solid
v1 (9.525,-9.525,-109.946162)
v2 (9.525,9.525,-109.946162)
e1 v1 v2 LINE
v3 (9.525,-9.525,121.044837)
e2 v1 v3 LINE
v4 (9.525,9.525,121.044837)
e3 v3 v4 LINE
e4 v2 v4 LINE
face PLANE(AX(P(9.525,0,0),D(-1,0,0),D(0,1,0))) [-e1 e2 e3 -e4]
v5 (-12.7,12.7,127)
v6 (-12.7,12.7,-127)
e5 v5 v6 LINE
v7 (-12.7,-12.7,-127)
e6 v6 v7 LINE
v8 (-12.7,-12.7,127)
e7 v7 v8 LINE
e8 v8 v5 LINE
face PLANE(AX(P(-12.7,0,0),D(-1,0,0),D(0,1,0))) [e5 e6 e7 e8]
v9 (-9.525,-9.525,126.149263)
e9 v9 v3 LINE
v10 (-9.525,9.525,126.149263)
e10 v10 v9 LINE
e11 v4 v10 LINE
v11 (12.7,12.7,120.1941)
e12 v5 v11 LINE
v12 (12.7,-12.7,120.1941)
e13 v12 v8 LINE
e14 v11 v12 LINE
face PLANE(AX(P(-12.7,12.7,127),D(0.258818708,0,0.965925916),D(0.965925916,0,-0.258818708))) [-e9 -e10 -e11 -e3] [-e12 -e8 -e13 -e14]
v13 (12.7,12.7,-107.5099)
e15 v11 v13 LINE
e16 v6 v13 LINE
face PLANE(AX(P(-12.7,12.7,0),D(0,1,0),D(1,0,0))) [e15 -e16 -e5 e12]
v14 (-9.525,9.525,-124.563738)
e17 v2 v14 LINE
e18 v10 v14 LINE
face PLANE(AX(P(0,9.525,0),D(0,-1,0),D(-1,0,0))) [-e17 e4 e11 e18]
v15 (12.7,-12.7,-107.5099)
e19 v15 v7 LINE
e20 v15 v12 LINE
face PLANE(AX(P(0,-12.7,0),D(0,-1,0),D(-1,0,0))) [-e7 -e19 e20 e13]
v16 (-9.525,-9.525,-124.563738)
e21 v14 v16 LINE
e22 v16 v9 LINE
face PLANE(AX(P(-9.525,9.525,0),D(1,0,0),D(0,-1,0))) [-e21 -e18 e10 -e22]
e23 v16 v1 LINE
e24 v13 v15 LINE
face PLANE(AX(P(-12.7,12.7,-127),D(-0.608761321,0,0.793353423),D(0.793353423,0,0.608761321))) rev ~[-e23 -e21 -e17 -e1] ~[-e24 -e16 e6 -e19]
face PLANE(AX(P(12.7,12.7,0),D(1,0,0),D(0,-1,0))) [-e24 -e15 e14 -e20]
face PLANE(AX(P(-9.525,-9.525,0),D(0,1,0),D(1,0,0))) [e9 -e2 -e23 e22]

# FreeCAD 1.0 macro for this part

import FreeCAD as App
import Part
import Sketcher

V = App.Vector
Q = App.Units.Quantity


def add_polygon(sketch, points):
    """Adds a closed chain of lines whose ends are joined by coincident constraints."""
    first, n = sketch.GeometryCount, len(points)
    for a, b in zip(points, points[1:] + points[:1]):
        sketch.addGeometry(Part.LineSegment(App.Vector(*a, 0), App.Vector(*b, 0)), False)
    for i in range(n):
        sketch.addConstraint(Sketcher.Constraint("Coincident", first + i, 2, first + (i + 1) % n, 1))

doc = App.newDocument("Part")
body = doc.addObject("PartDesign::Body", "Body")

# Sketch on XY plane
sketch1 = doc.addObject("Sketcher::SketchObject", "Sketch")
body.addObject(sketch1)
sketch1.AttachmentSupport = (doc.XY_Plane, [""])
sketch1.MapMode = "FlatFace"
add_polygon(sketch1, [(-13, 13), (-13, -13), (13, -13), (13, 13)])  # lines 0-3
add_polygon(sketch1, [(-10, 10), (10, 10), (10, -10), (-10, -10)])  # lines 4-7
sketch1.addConstraint([
    Sketcher.Constraint("Vertical", 0),
    Sketcher.Constraint("Horizontal", 1),
    Sketcher.Constraint("Vertical", 2),
    Sketcher.Constraint("Horizontal", 3),
    Sketcher.Constraint("Horizontal", 4),
    Sketcher.Constraint("Vertical", 5),
    Sketcher.Constraint("Horizontal", 6),
    Sketcher.Constraint("Vertical", 7),
    Sketcher.Constraint("Symmetric", 0, 2, 2, 2, -1, 1),
    Sketcher.Constraint("Symmetric", 4, 2, 6, 2, -1, 1),
    Sketcher.Constraint("Equal", 3, 0),
    Sketcher.Constraint("Equal", 6, 5),
    Sketcher.Constraint("DistanceX", 1, 1, 1, 2, Q("1 in")),
    Sketcher.Constraint("DistanceX", 4, 2, 2, 2, Q("0.125 in")),
])
pad1 = doc.addObject("PartDesign::Pad", "Pad")
body.addObject(pad1)
pad1.Profile = sketch1
pad1.Length = Q("10 in")
pad1.Midplane = True

# Sketch on XZ plane
sketch2 = doc.addObject("Sketcher::SketchObject", "Sketch001")
body.addObject(sketch2)
sketch2.AttachmentSupport = (doc.XZ_Plane, [""])
sketch2.MapMode = "FlatFace"
sketch2.AttachmentOffset = App.Placement(V(0, 0, -0.5 * 25.4), App.Rotation())
add_polygon(sketch2, [(-13, -127), (13, -108), (13, -127)])  # lines 0-2
sketch2.addConstraint([
    Sketcher.Constraint("Vertical", 1),
    Sketcher.Constraint("Horizontal", 2),
    Sketcher.Constraint("Angle", 0, Q("37.5 deg")),
    Sketcher.Constraint("DistanceX", 2, 2, 2, 1, Q("1 in")),
    Sketcher.Constraint("DistanceY", 1, 2, -1, 1, Q("5 in")),
    Sketcher.Constraint("DistanceX", -1, 1, 0, 2, Q("0.5 in")),
])
pocket1 = doc.addObject("PartDesign::Pocket", "Pocket")
body.addObject(pocket1)
pocket1.Profile = sketch2
pocket1.Type = "ThroughAll"
pocket1.Reversed = True

# Sketch on XZ plane
sketch3 = doc.addObject("Sketcher::SketchObject", "Sketch002")
body.addObject(sketch3)
sketch3.AttachmentSupport = (doc.XZ_Plane, [""])
sketch3.MapMode = "FlatFace"
sketch3.AttachmentOffset = App.Placement(V(0, 0, -0.5 * 25.4), App.Rotation())
add_polygon(sketch3, [(13, 120), (-13, 127), (13, 127)])  # lines 0-2
sketch3.addConstraint([
    Sketcher.Constraint("Horizontal", 1),
    Sketcher.Constraint("Vertical", 2),
    Sketcher.Constraint("DistanceX", 1, 1, 1, 2, Q("1 in")),
    Sketcher.Constraint("DistanceY", -1, 1, 0, 2, Q("5 in")),
    Sketcher.Constraint("Angle", 0, Q("165 deg")),
    Sketcher.Constraint("DistanceX", 0, 2, -1, 1, Q("0.5 in")),
])
pocket2 = doc.addObject("PartDesign::Pocket", "Pocket001")
body.addObject(pocket2)
pocket2.Profile = sketch3
pocket2.Type = "ThroughAll"
pocket2.Reversed = True

doc.recompute()
